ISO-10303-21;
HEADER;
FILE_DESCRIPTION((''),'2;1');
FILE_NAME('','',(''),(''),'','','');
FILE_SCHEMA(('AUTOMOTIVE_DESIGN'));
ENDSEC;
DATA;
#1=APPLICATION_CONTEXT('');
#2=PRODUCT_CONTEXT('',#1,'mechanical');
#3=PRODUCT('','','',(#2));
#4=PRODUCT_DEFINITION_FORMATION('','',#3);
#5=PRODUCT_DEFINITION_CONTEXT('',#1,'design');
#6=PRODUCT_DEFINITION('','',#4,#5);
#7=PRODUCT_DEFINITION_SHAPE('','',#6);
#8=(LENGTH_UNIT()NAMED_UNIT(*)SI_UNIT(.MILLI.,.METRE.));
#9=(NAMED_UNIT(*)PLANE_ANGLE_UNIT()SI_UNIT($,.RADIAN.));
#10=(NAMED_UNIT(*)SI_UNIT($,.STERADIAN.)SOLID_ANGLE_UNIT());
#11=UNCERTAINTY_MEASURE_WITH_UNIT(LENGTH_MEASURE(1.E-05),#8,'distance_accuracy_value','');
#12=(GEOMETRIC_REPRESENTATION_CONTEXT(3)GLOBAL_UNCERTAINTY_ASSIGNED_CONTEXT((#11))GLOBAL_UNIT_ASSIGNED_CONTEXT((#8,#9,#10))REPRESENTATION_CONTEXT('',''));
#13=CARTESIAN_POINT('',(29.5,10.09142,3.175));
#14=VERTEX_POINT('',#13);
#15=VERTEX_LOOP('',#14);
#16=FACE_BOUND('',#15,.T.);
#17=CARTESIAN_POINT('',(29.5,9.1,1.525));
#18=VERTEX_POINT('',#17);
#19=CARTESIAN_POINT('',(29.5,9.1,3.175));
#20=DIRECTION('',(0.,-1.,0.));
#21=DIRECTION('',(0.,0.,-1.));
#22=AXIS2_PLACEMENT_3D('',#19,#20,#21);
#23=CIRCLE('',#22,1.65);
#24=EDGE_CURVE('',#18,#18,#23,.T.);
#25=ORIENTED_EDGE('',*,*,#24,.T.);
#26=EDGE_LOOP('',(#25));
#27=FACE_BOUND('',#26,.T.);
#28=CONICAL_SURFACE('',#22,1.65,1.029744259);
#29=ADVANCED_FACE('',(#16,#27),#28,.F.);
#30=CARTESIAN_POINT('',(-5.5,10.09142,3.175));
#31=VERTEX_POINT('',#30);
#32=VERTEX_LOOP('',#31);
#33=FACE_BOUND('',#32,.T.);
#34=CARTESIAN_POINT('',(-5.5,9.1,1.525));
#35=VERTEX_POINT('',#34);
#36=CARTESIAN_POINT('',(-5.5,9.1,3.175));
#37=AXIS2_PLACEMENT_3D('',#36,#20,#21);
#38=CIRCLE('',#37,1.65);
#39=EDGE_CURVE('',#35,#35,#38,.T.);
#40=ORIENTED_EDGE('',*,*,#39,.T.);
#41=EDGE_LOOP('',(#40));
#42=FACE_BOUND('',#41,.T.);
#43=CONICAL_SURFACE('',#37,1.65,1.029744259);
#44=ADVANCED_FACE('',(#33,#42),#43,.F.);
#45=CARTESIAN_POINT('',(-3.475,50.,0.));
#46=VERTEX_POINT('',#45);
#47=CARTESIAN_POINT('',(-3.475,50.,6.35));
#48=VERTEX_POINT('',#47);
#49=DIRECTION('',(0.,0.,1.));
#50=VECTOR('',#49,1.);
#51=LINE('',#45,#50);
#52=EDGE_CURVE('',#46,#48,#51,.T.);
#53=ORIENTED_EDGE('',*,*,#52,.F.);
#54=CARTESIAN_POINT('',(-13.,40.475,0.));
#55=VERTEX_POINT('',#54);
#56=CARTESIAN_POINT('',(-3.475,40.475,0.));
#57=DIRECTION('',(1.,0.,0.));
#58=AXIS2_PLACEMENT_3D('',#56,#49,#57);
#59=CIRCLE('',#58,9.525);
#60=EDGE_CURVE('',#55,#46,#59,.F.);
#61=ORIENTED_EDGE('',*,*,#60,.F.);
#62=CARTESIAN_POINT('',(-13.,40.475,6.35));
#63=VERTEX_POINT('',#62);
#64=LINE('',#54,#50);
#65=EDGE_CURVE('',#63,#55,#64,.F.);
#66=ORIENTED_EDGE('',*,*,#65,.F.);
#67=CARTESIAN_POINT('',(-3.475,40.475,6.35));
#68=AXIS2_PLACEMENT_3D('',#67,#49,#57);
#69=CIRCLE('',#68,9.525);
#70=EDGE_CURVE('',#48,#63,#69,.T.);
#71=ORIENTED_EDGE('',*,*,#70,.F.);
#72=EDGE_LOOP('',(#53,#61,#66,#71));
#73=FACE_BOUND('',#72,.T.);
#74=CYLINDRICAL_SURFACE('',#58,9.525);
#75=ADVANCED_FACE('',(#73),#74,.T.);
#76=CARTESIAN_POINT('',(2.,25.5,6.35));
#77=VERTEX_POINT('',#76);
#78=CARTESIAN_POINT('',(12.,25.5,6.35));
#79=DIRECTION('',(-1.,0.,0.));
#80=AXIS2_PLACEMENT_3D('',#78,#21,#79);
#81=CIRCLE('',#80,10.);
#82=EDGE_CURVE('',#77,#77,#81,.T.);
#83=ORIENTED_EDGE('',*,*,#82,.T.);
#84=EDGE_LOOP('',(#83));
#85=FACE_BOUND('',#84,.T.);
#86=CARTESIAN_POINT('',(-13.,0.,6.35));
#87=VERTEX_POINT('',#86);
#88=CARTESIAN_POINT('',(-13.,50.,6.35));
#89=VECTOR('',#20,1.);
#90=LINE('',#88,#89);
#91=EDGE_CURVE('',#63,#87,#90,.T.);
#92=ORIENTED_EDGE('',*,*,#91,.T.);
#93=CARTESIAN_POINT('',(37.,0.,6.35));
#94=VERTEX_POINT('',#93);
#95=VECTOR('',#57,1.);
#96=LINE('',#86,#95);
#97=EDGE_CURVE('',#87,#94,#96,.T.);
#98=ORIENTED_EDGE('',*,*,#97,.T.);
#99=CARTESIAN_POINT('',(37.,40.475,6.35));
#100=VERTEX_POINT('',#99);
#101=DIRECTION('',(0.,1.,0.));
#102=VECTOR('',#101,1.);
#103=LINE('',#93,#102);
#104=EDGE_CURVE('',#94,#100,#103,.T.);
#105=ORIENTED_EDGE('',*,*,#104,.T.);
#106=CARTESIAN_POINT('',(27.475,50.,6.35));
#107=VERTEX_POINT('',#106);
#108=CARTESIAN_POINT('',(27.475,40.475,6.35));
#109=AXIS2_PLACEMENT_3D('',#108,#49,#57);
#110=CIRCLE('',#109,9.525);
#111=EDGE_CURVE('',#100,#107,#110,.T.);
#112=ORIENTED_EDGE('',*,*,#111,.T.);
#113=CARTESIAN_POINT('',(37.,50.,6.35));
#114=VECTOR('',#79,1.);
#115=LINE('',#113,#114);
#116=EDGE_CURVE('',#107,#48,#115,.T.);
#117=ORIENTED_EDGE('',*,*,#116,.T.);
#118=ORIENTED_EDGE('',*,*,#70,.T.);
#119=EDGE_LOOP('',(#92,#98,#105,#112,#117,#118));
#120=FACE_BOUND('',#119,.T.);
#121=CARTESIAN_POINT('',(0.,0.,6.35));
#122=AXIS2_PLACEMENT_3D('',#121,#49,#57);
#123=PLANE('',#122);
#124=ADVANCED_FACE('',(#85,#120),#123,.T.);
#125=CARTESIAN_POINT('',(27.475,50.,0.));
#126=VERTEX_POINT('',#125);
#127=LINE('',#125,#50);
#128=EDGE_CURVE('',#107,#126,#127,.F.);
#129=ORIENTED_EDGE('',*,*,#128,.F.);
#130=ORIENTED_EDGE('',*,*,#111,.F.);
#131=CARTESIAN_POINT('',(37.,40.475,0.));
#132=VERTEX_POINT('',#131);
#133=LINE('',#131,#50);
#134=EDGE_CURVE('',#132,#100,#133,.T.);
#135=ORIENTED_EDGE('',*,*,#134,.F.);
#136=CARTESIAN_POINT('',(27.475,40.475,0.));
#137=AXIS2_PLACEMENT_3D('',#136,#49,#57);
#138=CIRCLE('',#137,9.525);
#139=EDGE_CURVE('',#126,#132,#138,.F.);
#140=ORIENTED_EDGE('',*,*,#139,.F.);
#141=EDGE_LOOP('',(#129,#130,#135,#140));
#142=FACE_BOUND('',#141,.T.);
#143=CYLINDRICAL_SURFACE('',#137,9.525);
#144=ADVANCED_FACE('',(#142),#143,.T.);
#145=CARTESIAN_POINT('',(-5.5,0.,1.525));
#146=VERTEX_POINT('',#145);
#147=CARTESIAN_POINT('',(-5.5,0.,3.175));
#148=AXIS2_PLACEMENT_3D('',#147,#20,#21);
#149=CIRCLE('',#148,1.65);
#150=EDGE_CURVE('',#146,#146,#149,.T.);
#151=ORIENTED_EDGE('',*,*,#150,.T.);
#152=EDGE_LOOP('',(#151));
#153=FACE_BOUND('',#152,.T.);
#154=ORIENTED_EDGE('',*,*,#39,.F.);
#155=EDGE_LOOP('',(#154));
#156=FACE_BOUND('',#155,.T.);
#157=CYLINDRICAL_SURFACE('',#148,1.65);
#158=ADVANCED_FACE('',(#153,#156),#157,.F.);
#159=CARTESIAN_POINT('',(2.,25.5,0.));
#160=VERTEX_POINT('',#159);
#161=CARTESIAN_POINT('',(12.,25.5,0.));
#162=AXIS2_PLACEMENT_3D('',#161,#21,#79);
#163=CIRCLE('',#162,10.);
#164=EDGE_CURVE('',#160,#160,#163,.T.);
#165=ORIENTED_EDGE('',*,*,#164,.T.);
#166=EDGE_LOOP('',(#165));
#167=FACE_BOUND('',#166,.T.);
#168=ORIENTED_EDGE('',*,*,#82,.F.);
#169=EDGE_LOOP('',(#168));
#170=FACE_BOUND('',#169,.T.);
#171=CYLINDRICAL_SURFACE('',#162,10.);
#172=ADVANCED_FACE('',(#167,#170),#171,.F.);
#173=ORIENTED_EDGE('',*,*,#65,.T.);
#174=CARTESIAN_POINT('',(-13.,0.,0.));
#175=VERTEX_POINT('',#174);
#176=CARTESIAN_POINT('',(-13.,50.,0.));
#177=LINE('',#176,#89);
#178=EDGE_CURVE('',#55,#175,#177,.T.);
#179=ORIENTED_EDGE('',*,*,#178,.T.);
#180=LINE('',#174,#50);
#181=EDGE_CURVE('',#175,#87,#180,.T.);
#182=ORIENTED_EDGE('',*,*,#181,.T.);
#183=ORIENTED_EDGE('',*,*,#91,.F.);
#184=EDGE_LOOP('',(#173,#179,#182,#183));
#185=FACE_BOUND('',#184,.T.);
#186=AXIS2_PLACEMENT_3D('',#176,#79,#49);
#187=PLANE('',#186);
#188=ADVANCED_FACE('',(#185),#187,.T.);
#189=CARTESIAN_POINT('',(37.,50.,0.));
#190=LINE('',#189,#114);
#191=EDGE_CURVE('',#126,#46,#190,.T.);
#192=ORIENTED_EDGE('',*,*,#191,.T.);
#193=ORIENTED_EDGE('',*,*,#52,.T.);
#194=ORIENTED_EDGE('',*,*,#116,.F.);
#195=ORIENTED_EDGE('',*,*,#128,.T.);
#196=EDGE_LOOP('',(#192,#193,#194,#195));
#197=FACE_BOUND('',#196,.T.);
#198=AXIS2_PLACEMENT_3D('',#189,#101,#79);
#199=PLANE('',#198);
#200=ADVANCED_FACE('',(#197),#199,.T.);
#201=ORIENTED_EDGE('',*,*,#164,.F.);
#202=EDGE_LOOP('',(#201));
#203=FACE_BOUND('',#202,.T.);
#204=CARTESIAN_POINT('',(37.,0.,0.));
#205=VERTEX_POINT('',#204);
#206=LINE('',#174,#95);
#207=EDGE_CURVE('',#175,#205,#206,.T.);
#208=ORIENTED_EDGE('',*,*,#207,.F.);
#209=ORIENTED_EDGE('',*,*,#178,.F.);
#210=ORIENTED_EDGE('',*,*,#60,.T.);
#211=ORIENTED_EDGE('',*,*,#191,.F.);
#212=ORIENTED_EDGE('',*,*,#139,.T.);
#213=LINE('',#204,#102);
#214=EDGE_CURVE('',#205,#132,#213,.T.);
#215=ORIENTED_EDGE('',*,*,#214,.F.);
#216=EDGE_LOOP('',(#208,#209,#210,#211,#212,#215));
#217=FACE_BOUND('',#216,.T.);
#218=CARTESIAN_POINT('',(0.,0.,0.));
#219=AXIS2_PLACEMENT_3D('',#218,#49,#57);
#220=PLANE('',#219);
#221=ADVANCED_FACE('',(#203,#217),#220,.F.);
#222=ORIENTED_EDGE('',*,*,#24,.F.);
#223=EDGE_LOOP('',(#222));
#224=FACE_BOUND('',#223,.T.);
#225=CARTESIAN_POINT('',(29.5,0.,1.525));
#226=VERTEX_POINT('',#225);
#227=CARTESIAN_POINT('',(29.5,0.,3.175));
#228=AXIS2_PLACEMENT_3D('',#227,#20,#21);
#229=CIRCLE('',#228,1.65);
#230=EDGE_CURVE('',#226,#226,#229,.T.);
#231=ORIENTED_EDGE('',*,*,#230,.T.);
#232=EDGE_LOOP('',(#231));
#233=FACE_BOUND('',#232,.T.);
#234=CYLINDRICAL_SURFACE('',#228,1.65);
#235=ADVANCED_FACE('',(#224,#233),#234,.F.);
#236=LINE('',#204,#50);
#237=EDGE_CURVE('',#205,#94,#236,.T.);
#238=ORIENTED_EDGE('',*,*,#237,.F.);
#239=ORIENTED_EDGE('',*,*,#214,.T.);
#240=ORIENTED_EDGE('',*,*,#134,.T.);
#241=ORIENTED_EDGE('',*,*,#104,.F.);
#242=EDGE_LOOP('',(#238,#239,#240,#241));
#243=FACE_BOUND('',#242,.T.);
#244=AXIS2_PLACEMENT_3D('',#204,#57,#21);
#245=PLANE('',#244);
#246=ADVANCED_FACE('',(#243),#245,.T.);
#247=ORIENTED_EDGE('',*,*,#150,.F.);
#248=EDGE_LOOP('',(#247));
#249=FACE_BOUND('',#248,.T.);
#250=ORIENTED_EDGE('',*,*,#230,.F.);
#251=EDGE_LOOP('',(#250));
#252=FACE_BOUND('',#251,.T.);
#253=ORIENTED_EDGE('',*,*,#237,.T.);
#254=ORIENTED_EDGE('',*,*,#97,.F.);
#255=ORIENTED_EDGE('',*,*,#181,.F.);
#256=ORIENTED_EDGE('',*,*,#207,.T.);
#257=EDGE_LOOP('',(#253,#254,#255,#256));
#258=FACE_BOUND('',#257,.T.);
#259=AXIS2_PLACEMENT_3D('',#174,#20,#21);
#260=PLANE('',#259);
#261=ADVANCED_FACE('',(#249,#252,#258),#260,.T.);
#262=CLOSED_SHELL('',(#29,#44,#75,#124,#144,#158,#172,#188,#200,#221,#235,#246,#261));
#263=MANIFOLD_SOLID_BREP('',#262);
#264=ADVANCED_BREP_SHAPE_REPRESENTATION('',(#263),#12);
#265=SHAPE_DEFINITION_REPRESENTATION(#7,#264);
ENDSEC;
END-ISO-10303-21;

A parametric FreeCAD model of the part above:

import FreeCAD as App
import Part
import Sketcher


def edges_at(feature, points):
    """Names of the edges that pass closest to the given points."""
    edges = feature.Shape.Edges
    near = lambda p: min(range(len(edges)), key=lambda i: edges[i].distToShape(Part.Vertex(*p))[0])
    return sorted({f"Edge{near(p) + 1}" for p in points})


def add_polygon(sketch, points):
    """Adds a closed chain of lines whose ends are joined by coincident constraints."""
    first, n = sketch.GeometryCount, len(points)
    for a, b in zip(points, points[1:] + points[:1]):
        sketch.addGeometry(Part.LineSegment(App.Vector(*a, 0), App.Vector(*b, 0)), False)
    for i in range(n):
        sketch.addConstraint(Sketcher.Constraint("Coincident", first + i, 2, first + (i + 1) % n, 1))

doc = App.newDocument("Part")
params = doc.addObject("Spreadsheet::Sheet", "Params")
for row, (alias, value) in enumerate([
    ("sketch1_width", "50 mm"),
    ("pad1_length", "6.35 mm"),
    ("sketch2_diameter", "20 mm"),
    ("hole_diameter", "20 mm"),
    ("sketch3_diameter", "3.3 mm"),
    ("hole2_diameter", "3.3 mm"),
    ("hole2_depth", "9.1 mm"),
    ("fillet_radius", "9.525 mm"),
], start=1):
    params.set(f"A{row}", alias)
    params.set(f"B{row}", "=" + value)
    params.setAlias(f"B{row}", alias)

body = doc.addObject("PartDesign::Body", "Body")

# Sketch on XY plane
sketch1 = body.newObject("Sketcher::SketchObject", "Sketch")
sketch1.AttachmentSupport = (doc.getObject("XY_Plane"), [""])
sketch1.MapMode = "FlatFace"
sketch1.AttachmentOffset = App.Placement(App.Vector(0, 0, 6.35), App.Rotation())
add_polygon(sketch1, [(-13, 50), (-13, 0), (37, 0), (37, 50)])  # lines 0-3
sketch1.addConstraint([
    Sketcher.Constraint("Vertical", 0),
    Sketcher.Constraint("Horizontal", 1),
    Sketcher.Constraint("Vertical", 2),
    Sketcher.Constraint("Horizontal", 3),
    Sketcher.Constraint("PointOnObject", 0, 2, -1),
    Sketcher.Constraint("Equal", 3, 0),
    Sketcher.Constraint("DistanceX", 1, 1, 1, 2, 50.0),
    Sketcher.Constraint("DistanceX", 0, 2, -1, 1, 13.0),
])
sketch1.setExpression("Constraints[10]", "Params.sketch1_width")
pad1 = body.newObject("PartDesign::Pad", "Pad")
pad1.Profile = sketch1
pad1.setExpression("Length", "Params.pad1_length")
pad1.Reversed = True

# Sketch on XY plane
sketch2 = body.newObject("Sketcher::SketchObject", "Sketch001")
sketch2.AttachmentSupport = (doc.getObject("XY_Plane"), [""])
sketch2.MapMode = "FlatFace"
sketch2.addGeometry(Part.Circle(App.Vector(12, 26, 0), App.Vector(0, 0, 1), 10), False)
sketch2.addConstraint([
    Sketcher.Constraint("Diameter", 0, 20.0),
    Sketcher.Constraint("DistanceX", -1, 1, 0, 3, 12.0),
    Sketcher.Constraint("DistanceY", -1, 1, 0, 3, 25.5),
])
sketch2.setExpression("Constraints[0]", "Params.sketch2_diameter")
doc.recompute()
hole = body.newObject("PartDesign::Hole", "Hole")
hole.Profile = sketch2
hole.ThreadType = "None"
hole.setExpression("Diameter", "Params.hole_diameter")
hole.DepthType = "ThroughAll"
hole.Reversed = True

# Sketch on XZ plane
sketch3 = body.newObject("Sketcher::SketchObject", "Sketch002")
sketch3.AttachmentSupport = (doc.getObject("XZ_Plane"), [""])
sketch3.MapMode = "FlatFace"
sketch3.addGeometry([
    Part.Circle(App.Vector(-5.5, 3.2, 0), App.Vector(0, 0, 1), 1.6),
    Part.Circle(App.Vector(29.5, 3.2, 0), App.Vector(0, 0, 1), 1.6),
], False)
sketch3.addConstraint([
    Sketcher.Constraint("Equal", 0, 1),
    Sketcher.Constraint("Horizontal", 0, 3, 1, 3),
    Sketcher.Constraint("Diameter", 0, 3.3),
    Sketcher.Constraint("DistanceX", 0, 3, 1, 3, 35.0),
    Sketcher.Constraint("DistanceX", 0, 3, -1, 1, 5.5),
    Sketcher.Constraint("DistanceY", -1, 1, 0, 3, 3.175),
])
sketch3.setExpression("Constraints[2]", "Params.sketch3_diameter")
doc.recompute()
hole2 = body.newObject("PartDesign::Hole", "Hole001")
hole2.Profile = sketch3
hole2.ThreadType = "None"
hole2.setExpression("Diameter", "Params.hole2_diameter")
hole2.DepthType = "Dimension"
hole2.setExpression("Depth", "Params.hole2_depth")
hole2.DrillPoint = "Angled"
hole2.DrillPointAngle = 118
doc.recompute()

fillet = body.newObject("PartDesign::Fillet", "Fillet")
fillet.Base = (hole2, edges_at(hole2, [(-13, 50, 3.175), (37, 50, 3.175)]))
fillet.setExpression("Radius", "Params.fillet_radius")

doc.recompute()
